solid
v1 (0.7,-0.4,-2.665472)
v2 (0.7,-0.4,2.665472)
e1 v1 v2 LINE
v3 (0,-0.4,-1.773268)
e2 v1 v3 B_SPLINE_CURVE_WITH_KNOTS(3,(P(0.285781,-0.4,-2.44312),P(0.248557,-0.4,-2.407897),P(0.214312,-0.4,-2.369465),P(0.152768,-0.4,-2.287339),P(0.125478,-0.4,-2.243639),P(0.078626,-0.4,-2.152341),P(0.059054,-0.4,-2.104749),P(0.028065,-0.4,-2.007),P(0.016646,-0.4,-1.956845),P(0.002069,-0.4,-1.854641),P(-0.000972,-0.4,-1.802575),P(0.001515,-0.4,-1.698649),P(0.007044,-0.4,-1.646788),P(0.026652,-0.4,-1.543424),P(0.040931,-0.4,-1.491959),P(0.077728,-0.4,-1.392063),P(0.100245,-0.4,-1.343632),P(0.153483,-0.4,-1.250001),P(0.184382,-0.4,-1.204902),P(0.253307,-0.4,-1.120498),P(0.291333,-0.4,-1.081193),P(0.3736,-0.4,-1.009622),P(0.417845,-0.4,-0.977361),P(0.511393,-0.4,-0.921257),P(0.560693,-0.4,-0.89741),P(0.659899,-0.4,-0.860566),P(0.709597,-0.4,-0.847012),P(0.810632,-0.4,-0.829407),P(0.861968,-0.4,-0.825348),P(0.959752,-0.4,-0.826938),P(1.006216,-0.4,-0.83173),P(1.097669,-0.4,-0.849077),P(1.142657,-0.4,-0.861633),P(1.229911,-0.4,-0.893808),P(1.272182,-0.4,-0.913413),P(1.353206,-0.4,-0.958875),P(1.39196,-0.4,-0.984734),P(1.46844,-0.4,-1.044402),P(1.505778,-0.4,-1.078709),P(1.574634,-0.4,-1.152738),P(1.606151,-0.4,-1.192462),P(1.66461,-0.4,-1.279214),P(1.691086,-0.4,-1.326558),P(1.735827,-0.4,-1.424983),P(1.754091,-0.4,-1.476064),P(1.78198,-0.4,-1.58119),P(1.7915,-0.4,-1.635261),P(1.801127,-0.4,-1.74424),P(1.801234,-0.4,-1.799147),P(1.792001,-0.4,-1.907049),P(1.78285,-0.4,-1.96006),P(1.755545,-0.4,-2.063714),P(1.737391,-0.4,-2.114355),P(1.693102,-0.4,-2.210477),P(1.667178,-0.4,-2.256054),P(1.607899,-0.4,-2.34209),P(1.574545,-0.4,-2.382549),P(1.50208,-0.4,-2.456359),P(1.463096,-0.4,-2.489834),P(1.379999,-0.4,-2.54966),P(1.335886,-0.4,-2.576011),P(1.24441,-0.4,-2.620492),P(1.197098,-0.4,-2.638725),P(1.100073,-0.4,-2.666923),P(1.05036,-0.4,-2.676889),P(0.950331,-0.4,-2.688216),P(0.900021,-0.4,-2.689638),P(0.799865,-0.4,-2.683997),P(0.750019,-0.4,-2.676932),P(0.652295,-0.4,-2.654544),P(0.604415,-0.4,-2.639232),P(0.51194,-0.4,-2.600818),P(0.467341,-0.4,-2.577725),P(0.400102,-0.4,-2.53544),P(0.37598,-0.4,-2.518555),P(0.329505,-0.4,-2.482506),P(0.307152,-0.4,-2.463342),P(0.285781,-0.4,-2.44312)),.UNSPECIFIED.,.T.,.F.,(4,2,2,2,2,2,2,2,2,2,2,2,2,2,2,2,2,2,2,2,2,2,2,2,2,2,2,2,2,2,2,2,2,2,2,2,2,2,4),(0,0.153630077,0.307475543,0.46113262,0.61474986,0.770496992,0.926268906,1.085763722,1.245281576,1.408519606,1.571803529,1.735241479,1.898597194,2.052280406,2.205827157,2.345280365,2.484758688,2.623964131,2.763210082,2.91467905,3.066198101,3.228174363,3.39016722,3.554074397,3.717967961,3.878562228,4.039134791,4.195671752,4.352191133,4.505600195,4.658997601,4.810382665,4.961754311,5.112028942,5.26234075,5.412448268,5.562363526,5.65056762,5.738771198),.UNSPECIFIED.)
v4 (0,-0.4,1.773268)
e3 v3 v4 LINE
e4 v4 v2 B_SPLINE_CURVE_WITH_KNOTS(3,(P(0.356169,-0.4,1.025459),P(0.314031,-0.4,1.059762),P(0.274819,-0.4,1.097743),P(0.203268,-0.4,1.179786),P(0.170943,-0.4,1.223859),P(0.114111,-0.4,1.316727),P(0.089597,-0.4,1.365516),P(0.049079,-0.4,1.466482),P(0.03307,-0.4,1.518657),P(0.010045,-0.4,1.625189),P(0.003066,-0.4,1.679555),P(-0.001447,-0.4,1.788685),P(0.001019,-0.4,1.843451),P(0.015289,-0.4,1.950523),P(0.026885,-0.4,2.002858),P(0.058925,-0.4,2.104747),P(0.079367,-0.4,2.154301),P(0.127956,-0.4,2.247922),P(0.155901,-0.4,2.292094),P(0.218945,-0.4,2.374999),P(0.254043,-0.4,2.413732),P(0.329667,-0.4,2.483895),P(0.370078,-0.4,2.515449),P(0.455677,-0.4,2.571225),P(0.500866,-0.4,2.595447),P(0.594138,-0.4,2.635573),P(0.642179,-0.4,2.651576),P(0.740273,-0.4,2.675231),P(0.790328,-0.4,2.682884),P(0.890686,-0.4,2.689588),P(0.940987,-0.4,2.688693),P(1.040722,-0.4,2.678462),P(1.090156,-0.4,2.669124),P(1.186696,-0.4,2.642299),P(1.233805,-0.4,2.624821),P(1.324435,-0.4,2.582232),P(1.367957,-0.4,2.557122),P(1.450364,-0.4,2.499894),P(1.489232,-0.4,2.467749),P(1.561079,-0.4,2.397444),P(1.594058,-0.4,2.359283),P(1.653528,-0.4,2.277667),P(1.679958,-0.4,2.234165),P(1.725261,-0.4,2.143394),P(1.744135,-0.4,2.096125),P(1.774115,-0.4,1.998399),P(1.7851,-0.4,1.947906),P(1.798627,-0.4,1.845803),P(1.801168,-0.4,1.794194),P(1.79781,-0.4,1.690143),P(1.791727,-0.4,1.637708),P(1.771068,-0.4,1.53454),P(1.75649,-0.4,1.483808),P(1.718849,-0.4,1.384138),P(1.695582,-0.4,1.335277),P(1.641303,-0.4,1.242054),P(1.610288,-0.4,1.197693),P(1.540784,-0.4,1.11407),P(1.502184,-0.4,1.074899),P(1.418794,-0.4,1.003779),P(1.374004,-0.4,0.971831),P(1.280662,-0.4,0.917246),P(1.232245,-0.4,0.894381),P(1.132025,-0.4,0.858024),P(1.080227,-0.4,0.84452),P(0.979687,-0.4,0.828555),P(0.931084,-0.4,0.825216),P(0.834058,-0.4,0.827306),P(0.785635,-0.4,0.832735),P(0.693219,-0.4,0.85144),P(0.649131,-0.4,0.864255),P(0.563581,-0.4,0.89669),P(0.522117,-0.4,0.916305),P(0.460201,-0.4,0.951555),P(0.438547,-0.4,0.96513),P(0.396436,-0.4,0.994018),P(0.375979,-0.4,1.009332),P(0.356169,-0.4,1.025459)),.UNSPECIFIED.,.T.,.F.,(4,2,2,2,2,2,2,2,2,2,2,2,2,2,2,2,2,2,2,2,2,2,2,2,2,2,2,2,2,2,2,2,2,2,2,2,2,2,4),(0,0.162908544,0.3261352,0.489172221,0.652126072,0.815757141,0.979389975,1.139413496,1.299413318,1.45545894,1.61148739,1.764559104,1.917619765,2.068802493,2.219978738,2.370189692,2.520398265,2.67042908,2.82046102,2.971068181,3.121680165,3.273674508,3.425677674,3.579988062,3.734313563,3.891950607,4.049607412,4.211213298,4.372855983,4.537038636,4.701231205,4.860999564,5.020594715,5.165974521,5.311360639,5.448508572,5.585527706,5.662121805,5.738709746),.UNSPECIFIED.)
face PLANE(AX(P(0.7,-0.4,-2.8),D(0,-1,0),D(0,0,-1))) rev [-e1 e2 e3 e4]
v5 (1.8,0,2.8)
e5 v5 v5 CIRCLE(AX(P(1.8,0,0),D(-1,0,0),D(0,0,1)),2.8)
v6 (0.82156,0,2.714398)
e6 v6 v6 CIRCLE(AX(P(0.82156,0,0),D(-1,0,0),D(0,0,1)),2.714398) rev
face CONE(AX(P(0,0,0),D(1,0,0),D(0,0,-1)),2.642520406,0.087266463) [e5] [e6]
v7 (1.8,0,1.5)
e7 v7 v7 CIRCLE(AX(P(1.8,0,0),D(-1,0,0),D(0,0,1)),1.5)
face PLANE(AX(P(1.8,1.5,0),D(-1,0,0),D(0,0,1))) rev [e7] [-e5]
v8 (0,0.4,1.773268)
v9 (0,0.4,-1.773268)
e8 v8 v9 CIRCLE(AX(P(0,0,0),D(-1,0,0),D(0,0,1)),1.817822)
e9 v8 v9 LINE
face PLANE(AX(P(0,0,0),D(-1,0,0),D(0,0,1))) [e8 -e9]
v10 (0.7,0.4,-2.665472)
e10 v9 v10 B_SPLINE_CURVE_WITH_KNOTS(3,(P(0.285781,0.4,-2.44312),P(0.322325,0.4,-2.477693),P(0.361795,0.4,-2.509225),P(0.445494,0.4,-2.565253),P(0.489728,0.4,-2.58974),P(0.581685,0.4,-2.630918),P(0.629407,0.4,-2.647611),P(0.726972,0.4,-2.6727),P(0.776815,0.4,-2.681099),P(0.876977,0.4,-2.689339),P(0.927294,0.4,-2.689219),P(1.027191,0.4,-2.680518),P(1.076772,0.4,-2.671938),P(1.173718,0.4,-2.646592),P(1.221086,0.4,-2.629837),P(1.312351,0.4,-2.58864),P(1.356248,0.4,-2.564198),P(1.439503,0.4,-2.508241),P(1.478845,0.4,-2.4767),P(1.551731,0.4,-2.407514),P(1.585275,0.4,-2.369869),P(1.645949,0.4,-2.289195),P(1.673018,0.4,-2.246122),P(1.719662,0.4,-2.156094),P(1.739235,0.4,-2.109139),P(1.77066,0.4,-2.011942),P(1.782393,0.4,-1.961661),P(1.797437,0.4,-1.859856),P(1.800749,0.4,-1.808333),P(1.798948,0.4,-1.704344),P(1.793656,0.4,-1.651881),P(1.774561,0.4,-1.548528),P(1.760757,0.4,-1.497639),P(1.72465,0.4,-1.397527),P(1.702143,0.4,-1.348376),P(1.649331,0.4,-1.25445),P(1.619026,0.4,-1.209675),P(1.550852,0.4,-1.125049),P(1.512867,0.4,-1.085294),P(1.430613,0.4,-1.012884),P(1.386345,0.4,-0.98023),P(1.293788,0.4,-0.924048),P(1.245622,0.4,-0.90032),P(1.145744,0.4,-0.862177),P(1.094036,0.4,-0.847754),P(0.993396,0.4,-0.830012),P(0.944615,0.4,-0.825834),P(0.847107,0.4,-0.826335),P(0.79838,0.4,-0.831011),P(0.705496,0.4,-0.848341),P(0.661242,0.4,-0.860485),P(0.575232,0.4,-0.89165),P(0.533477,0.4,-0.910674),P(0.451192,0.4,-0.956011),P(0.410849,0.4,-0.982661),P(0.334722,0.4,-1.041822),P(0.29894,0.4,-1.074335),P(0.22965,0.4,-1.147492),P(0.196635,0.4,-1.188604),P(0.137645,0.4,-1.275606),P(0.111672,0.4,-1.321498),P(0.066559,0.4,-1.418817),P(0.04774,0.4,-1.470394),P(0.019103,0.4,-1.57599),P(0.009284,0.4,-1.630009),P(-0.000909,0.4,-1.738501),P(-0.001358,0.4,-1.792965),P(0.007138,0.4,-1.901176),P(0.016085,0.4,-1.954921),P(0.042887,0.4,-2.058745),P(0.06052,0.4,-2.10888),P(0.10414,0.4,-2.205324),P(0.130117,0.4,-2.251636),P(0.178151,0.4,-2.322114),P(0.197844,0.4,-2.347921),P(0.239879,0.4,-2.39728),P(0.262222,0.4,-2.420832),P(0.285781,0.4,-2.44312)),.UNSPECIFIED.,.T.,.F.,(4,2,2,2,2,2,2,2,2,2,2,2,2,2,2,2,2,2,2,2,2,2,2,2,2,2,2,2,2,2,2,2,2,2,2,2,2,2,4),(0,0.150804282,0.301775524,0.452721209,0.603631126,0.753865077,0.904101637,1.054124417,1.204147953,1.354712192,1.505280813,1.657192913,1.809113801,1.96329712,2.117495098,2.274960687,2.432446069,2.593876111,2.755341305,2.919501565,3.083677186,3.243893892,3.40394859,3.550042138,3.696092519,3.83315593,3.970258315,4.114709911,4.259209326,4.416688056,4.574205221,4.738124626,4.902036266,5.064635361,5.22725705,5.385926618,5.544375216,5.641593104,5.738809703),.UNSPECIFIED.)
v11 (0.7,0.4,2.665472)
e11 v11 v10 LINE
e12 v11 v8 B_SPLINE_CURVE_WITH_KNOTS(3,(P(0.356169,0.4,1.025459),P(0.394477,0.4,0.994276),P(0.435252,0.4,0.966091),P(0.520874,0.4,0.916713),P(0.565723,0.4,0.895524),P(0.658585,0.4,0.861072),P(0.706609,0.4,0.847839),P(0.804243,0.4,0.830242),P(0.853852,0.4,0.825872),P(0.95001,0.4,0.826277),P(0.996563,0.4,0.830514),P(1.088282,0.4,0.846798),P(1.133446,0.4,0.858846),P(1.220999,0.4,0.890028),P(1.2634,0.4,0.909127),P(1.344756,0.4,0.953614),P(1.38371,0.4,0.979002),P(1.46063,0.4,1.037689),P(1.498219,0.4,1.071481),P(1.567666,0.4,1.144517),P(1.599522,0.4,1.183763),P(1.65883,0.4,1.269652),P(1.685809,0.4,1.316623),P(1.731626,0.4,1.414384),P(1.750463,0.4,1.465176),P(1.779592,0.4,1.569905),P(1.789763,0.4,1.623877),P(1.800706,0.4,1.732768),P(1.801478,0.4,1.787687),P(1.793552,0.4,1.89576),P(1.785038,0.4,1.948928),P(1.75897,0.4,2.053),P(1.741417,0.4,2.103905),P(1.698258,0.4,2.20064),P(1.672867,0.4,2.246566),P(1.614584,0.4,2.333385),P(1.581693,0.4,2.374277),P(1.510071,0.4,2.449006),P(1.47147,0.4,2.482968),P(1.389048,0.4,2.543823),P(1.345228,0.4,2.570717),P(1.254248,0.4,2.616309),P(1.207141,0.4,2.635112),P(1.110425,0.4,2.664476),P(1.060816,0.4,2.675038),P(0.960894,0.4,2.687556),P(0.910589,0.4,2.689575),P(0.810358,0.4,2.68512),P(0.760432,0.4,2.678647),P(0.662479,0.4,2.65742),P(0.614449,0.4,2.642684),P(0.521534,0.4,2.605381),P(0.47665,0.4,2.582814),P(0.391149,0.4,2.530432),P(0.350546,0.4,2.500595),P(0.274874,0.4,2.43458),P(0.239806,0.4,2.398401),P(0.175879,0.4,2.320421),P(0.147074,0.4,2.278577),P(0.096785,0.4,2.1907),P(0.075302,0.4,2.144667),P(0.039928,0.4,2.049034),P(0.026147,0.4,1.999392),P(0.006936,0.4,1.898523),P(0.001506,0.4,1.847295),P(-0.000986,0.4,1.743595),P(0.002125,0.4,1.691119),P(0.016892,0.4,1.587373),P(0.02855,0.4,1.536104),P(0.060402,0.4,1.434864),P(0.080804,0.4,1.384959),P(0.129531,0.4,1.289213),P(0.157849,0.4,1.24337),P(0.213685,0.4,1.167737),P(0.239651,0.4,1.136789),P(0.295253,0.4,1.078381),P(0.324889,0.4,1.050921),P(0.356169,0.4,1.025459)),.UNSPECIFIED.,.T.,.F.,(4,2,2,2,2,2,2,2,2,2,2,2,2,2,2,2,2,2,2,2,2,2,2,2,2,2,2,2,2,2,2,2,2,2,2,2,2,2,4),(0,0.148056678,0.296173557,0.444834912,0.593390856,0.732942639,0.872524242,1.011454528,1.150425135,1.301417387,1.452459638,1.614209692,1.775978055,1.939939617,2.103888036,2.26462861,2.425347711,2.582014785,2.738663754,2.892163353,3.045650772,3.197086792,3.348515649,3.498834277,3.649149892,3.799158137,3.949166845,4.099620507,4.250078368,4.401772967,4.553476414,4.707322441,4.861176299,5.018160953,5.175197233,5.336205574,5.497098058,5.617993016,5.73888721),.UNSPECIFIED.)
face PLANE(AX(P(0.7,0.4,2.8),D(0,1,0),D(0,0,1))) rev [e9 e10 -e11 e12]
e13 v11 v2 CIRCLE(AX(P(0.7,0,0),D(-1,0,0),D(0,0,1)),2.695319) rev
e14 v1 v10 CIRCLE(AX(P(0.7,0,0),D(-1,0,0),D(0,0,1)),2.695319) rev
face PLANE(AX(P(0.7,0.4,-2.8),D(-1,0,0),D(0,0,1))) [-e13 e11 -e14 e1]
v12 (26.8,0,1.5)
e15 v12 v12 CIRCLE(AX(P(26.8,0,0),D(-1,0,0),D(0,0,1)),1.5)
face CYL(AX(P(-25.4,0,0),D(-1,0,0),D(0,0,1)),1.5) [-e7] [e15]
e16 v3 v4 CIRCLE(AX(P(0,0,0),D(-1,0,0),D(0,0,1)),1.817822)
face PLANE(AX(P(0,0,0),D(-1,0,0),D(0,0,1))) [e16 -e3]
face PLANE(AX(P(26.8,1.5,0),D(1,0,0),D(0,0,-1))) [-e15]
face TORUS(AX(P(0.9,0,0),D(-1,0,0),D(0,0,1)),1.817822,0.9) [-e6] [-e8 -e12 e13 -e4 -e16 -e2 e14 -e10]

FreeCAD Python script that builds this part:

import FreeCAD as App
import Part
import Sketcher
Q = App.Units.Quantity


def edges_at(feature, points):
    """Names of the edges that pass closest to the given points."""
    edges = feature.Shape.Edges
    near = lambda p: min(range(len(edges)), key=lambda i: edges[i].distToShape(Part.Vertex(*p))[0])
    return sorted({f"Edge{near(p) + 1}" for p in points})

doc = App.newDocument("Part")
body = doc.addObject("PartDesign::Body", "Body")

# Sketch on XY plane
sketch1 = body.newObject("Sketcher::SketchObject", "Sketch")
sketch1.AttachmentSupport = (doc.getObject("XY_Plane"), [""])
sketch1.MapMode = "FlatFace"
sketch1.addGeometry(Part.LineSegment(App.Vector(1.8, 1.5, 0), App.Vector(1.8, 2.8, 0)), False)
sketch1.addGeometry(Part.LineSegment(App.Vector(1.8, 2.8, 0), App.Vector(0, 2.6, 0)), False)
sketch1.addGeometry(Part.LineSegment(App.Vector(0, 2.6, 0), App.Vector(0, 0, 0)), False)
sketch1.addGeometry(Part.LineSegment(App.Vector(0, 0, 0), App.Vector(26.8, 0, 0)), False)
sketch1.addGeometry(Part.LineSegment(App.Vector(26.8, 0, 0), App.Vector(26.8, 1.5, 0)), False)
sketch1.addGeometry(Part.LineSegment(App.Vector(26.8, 1.5, 0), App.Vector(1.8, 1.5, 0)), False)
sketch1.addConstraint(Sketcher.Constraint("Coincident", 0, 2, 1, 1))
sketch1.addConstraint(Sketcher.Constraint("Coincident", 1, 2, 2, 1))
sketch1.addConstraint(Sketcher.Constraint("Coincident", 2, 2, 3, 1))
sketch1.addConstraint(Sketcher.Constraint("Coincident", 3, 2, 4, 1))
sketch1.addConstraint(Sketcher.Constraint("Coincident", 4, 2, 5, 1))
sketch1.addConstraint(Sketcher.Constraint("Coincident", 5, 2, 0, 1))
sketch1.addConstraint(Sketcher.Constraint("Vertical", 0))
sketch1.addConstraint(Sketcher.Constraint("Vertical", 2))
sketch1.addConstraint(Sketcher.Constraint("Horizontal", 3))
sketch1.addConstraint(Sketcher.Constraint("Vertical", 4))
sketch1.addConstraint(Sketcher.Constraint("Horizontal", 5))
sketch1.addConstraint(Sketcher.Constraint("Coincident", 2, 2, -1, 1))
sketch1.addConstraint(Sketcher.Constraint("DistanceX", 5, 2, 5, 1, Q("25 mm")))
sketch1.addConstraint(Sketcher.Constraint("Angle", 1, Q("-175 deg")))
sketch1.addConstraint(Sketcher.Constraint("DistanceX", 3, 1, 3, 2, Q("26.8 mm")))
sketch1.addConstraint(Sketcher.Constraint("DistanceY", 0, 1, 0, 2, Q("1.3 mm")))
sketch1.addConstraint(Sketcher.Constraint("DistanceY", 4, 1, 4, 2, Q("1.5 mm")))
revolution = body.newObject("PartDesign::Revolution", "Revolution")
revolution.Profile = sketch1
revolution.ReferenceAxis = (sketch1, ["H_Axis"])
revolution.Angle = 360
doc.recompute()

fillet = body.newObject("PartDesign::Fillet", "Fillet")
fillet.Base = (revolution, edges_at(revolution, [(0, 0, -2.643)]))
fillet.Radius = 0.9

# Sketch on YZ plane
sketch2 = body.newObject("Sketcher::SketchObject", "Sketch001")
sketch2.AttachmentSupport = (doc.getObject("YZ_Plane"), [""])
sketch2.MapMode = "FlatFace"
sketch2.addGeometry(Part.LineSegment(App.Vector(0.4, 2.8, 0), App.Vector(-0.4, 2.8, 0)), False)
sketch2.addGeometry(Part.LineSegment(App.Vector(-0.4, 2.8, 0), App.Vector(-0.4, -2.8, 0)), False)
sketch2.addGeometry(Part.LineSegment(App.Vector(-0.4, -2.8, 0), App.Vector(0.4, -2.8, 0)), False)
sketch2.addGeometry(Part.LineSegment(App.Vector(0.4, -2.8, 0), App.Vector(0.4, 2.8, 0)), False)
sketch2.addConstraint(Sketcher.Constraint("Coincident", 0, 2, 1, 1))
sketch2.addConstraint(Sketcher.Constraint("Coincident", 1, 2, 2, 1))
sketch2.addConstraint(Sketcher.Constraint("Coincident", 2, 2, 3, 1))
sketch2.addConstraint(Sketcher.Constraint("Coincident", 3, 2, 0, 1))
sketch2.addConstraint(Sketcher.Constraint("Horizontal", 0))
sketch2.addConstraint(Sketcher.Constraint("Vertical", 1))
sketch2.addConstraint(Sketcher.Constraint("Horizontal", 2))
sketch2.addConstraint(Sketcher.Constraint("Vertical", 3))
sketch2.addConstraint(Sketcher.Constraint("Symmetric", 0, 2, 2, 2, -1, 1))
sketch2.addConstraint(Sketcher.Constraint("DistanceX", 0, 2, 0, 1, Q("0.8 mm")))
sketch2.addConstraint(Sketcher.Constraint("DistanceY", 1, 2, 1, 1, Q("5.6 mm")))
pocket1 = body.newObject("PartDesign::Pocket", "Pocket")
pocket1.Profile = sketch2
pocket1.Length = 0.7
pocket1.Reversed = True

doc.recompute()
